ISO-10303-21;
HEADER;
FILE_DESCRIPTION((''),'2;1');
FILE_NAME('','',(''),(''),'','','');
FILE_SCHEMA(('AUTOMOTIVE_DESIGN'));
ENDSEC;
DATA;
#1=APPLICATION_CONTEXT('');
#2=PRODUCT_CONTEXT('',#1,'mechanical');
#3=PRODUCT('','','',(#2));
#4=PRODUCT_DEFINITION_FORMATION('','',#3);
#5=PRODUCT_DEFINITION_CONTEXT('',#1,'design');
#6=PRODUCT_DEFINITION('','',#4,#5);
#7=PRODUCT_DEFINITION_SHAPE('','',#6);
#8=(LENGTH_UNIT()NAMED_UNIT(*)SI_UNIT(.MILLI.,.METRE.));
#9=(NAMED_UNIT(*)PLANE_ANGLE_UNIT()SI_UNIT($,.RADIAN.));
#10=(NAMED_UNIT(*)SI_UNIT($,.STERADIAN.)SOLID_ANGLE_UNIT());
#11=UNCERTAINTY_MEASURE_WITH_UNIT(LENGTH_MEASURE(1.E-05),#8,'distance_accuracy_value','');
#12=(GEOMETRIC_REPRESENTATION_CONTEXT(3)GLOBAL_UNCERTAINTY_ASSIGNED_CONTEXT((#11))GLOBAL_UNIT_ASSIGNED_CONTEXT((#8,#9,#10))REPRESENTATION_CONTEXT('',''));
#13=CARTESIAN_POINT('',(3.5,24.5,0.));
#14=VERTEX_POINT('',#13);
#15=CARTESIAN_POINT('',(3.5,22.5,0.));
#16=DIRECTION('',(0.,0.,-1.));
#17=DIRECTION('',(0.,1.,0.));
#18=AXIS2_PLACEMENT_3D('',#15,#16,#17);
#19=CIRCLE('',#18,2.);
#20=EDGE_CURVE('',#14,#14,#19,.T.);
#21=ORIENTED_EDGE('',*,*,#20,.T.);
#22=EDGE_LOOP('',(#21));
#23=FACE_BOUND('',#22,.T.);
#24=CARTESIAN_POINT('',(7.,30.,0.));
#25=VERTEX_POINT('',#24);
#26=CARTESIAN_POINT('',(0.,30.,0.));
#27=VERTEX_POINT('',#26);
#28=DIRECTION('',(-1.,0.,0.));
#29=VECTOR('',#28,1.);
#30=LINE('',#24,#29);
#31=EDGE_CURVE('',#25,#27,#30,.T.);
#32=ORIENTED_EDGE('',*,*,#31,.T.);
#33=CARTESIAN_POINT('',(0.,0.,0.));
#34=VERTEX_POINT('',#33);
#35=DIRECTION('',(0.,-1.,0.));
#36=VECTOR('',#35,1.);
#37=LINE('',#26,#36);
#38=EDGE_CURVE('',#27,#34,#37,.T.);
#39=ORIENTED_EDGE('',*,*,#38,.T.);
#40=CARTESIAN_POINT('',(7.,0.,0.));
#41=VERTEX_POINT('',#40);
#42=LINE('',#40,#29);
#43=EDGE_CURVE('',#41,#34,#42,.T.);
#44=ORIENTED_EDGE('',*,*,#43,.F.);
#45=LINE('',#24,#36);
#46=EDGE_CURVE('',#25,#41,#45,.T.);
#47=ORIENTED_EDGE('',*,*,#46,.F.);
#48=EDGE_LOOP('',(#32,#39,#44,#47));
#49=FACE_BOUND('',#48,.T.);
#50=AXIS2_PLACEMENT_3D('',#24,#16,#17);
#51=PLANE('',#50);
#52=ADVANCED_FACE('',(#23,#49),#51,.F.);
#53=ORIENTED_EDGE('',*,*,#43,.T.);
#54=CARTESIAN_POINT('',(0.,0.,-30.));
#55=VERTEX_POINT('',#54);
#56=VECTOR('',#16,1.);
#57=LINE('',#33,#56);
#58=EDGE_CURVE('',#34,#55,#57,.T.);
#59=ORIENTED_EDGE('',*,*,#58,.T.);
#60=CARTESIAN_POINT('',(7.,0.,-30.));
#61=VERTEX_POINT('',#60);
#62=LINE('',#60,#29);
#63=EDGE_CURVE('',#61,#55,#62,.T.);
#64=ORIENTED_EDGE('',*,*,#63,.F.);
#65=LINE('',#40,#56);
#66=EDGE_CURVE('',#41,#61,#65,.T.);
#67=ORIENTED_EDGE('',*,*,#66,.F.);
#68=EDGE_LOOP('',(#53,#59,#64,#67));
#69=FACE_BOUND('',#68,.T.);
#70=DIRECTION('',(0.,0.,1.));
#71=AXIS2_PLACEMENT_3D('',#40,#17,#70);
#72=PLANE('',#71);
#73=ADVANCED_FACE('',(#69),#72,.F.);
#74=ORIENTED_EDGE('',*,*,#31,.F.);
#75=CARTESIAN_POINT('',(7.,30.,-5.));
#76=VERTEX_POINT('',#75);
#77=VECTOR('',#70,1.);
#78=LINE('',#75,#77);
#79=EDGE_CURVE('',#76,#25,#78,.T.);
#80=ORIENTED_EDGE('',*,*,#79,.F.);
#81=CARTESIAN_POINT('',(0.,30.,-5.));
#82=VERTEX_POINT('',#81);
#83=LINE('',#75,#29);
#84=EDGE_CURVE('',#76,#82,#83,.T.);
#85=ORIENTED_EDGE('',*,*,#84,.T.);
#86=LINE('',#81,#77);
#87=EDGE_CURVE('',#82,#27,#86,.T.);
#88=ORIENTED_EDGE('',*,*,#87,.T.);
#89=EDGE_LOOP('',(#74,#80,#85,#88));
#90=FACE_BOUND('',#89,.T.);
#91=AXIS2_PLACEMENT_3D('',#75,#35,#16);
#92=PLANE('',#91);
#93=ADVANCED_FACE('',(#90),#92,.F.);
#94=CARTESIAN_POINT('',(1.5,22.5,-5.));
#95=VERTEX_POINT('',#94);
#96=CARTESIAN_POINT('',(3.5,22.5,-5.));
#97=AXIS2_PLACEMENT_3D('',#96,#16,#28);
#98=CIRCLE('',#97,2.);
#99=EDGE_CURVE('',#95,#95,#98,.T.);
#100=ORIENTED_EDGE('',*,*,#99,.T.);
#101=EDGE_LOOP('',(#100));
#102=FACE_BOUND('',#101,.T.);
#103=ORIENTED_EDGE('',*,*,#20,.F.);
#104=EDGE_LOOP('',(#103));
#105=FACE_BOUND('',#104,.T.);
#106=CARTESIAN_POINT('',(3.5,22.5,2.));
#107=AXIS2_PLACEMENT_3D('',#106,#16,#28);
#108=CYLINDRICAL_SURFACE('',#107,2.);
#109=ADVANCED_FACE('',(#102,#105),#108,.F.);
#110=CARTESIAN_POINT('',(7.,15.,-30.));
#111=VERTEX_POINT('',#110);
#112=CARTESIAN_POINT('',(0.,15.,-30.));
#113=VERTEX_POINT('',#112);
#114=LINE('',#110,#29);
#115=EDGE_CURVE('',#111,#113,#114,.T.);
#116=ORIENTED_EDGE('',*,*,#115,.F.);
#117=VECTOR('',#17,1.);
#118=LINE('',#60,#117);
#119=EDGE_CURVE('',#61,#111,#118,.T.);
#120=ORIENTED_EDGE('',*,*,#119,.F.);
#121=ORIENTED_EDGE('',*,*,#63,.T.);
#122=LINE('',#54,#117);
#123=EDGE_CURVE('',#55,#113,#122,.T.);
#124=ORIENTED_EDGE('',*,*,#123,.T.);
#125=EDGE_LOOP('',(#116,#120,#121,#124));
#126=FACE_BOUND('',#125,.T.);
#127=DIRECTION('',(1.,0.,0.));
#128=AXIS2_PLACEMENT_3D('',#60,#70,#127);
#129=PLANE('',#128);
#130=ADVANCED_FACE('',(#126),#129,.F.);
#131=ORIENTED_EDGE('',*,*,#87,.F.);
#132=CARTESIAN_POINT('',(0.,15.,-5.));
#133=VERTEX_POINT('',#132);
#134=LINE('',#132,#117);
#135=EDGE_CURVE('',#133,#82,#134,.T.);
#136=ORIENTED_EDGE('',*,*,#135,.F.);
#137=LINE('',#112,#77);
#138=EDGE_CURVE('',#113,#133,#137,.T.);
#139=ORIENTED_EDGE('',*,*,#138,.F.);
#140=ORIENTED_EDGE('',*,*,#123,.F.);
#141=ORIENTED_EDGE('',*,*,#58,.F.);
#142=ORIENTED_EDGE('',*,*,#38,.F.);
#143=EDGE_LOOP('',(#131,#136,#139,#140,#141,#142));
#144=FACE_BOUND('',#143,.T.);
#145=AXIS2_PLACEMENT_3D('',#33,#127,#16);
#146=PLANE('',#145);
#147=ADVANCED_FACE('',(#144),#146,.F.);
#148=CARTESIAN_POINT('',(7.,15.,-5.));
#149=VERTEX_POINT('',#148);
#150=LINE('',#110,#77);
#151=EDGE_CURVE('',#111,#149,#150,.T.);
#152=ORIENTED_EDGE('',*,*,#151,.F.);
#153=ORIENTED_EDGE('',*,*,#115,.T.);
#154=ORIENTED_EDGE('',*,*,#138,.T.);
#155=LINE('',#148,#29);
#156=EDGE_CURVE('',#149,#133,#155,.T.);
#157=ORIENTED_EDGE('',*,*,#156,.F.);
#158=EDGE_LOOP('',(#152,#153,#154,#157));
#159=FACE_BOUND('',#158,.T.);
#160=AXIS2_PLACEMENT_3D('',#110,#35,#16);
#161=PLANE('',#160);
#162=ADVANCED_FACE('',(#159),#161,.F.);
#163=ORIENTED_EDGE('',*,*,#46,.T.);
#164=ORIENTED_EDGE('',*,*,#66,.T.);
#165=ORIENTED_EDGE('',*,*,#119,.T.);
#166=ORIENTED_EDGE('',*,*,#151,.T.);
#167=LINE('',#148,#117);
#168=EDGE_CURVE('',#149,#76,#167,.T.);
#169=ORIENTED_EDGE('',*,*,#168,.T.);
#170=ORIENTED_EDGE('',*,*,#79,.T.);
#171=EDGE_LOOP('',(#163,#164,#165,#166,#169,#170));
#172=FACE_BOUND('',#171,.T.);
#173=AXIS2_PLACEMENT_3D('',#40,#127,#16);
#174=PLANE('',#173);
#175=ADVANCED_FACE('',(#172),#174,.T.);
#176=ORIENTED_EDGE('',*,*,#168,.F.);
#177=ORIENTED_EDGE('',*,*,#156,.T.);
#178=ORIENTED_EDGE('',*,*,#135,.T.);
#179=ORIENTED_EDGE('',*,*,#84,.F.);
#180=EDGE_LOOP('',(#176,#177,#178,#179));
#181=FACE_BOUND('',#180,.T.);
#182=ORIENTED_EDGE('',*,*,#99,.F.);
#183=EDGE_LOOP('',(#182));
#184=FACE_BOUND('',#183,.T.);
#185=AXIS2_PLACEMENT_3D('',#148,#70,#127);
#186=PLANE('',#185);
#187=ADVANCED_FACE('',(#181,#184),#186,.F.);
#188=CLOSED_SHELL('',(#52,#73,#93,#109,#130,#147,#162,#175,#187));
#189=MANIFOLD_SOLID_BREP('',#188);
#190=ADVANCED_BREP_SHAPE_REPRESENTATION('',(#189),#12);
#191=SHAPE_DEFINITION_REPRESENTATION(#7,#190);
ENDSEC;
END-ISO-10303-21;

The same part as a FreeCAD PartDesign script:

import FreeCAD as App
import Part
import Sketcher

V = App.Vector

doc = App.newDocument("Part")
body = doc.addObject("PartDesign::Body", "Body")

# Sketch on YZ plane
sketch1 = body.newObject("Sketcher::SketchObject", "Sketch")
sketch1.AttachmentSupport = (doc.getObject("YZ_Plane"), [""])
sketch1.MapMode = "FlatFace"
sketch1.addGeometry(Part.LineSegment(V(0, 0, 0), V(0, -30, 0)), False)
sketch1.addGeometry(Part.LineSegment(V(0, -30, 0), V(15, -30, 0)), False)
sketch1.addGeometry(Part.LineSegment(V(15, -30, 0), V(15, -5, 0)), False)
sketch1.addGeometry(Part.LineSegment(V(15, -5, 0), V(30, -5, 0)), False)
sketch1.addGeometry(Part.LineSegment(V(30, -5, 0), V(30, 0, 0)), False)
sketch1.addGeometry(Part.LineSegment(V(30, 0, 0), V(0, 0, 0)), False)
sketch1.addConstraint(Sketcher.Constraint("Coincident", 0, 2, 1, 1))
sketch1.addConstraint(Sketcher.Constraint("Coincident", 1, 2, 2, 1))
sketch1.addConstraint(Sketcher.Constraint("Coincident", 2, 2, 3, 1))
sketch1.addConstraint(Sketcher.Constraint("Coincident", 3, 2, 4, 1))
sketch1.addConstraint(Sketcher.Constraint("Coincident", 4, 2, 5, 1))
sketch1.addConstraint(Sketcher.Constraint("Coincident", 5, 2, 0, 1))
sketch1.addConstraint(Sketcher.Constraint("Vertical", 0))
sketch1.addConstraint(Sketcher.Constraint("Horizontal", 1))
sketch1.addConstraint(Sketcher.Constraint("Vertical", 2))
sketch1.addConstraint(Sketcher.Constraint("Horizontal", 3))
sketch1.addConstraint(Sketcher.Constraint("Vertical", 4))
sketch1.addConstraint(Sketcher.Constraint("Horizontal", 5))
sketch1.addConstraint(Sketcher.Constraint("Coincident", 5, 2, -1, 1))
sketch1.addConstraint(Sketcher.Constraint("Equal", 1, 3))
sketch1.addConstraint(Sketcher.Constraint("Equal", 5, 0))
sketch1.addConstraint(Sketcher.Constraint("DistanceX", 1, 1, 1, 2, 15.0))
sketch1.addConstraint(Sketcher.Constraint("DistanceY", 2, 1, 2, 2, 25.0))
pad1 = body.newObject("PartDesign::Pad", "Pad")
pad1.Profile = sketch1
pad1.Length = 7

# Sketch on XY plane
sketch2 = body.newObject("Sketcher::SketchObject", "Sketch001")
sketch2.AttachmentSupport = (doc.getObject("XY_Plane"), [""])
sketch2.MapMode = "FlatFace"
sketch2.AttachmentOffset = App.Placement(V(0, 0, -5), App.Rotation())
sketch2.addGeometry(Part.Circle(V(3.5, 22.5, 0), V(0, 0, 1), 2), False)
sketch2.addConstraint(Sketcher.Constraint("Diameter", 0, 4.0))
sketch2.addConstraint(Sketcher.Constraint("DistanceX", -1, 1, 0, 3, 3.5))
sketch2.addConstraint(Sketcher.Constraint("DistanceY", -1, 1, 0, 3, 22.5))
pocket1 = body.newObject("PartDesign::Pocket", "Pocket")
pocket1.Profile = sketch2
pocket1.Length = 7
pocket1.Reversed = True

doc.recompute()
